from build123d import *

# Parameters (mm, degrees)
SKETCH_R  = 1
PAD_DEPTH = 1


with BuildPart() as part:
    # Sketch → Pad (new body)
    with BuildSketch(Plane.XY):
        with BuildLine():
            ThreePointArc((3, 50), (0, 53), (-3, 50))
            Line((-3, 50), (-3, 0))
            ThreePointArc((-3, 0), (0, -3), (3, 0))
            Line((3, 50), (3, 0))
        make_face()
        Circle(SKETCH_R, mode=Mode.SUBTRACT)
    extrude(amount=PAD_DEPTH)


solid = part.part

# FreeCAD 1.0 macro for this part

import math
import FreeCAD as App
import Part
import Sketcher
Q = App.Units.Quantity

doc = App.newDocument("Part")
body = doc.addObject("PartDesign::Body", "Body")

sketch1 = body.newObject("Sketcher::SketchObject", "Sketch")
sketch1.AttachmentSupport = (doc.getObject("XY_Plane"), [""])
sketch1.MapMode = "FlatFace"
sketch1.addGeometry([
    Part.ArcOfCircle(Part.Circle(App.Vector(0, 50, 0), App.Vector(0, 0, 1), 3), math.radians(0), math.radians(180)),
    Part.LineSegment(App.Vector(-3, 50, 0), App.Vector(-3, 0, 0)),
    Part.ArcOfCircle(Part.Circle(App.Vector(0, 0, 0), App.Vector(0, 0, 1), 3), math.radians(180), math.radians(360)),
    Part.LineSegment(App.Vector(3, 0, 0), App.Vector(3, 50, 0)),
    Part.Circle(App.Vector(0, 0, 0), App.Vector(0, 0, 1), 1),
], False)
sketch1.addConstraint([
    Sketcher.Constraint("Tangent", 0, 2, 1, 1),
    Sketcher.Constraint("Tangent", 1, 2, 2, 1),
    Sketcher.Constraint("Tangent", 2, 2, 3, 1),
    Sketcher.Constraint("Tangent", 3, 2, 0, 1),
    Sketcher.Constraint("Vertical", 1),
    Sketcher.Constraint("Vertical", 3),
    Sketcher.Constraint("Coincident", 2, 3, -1, 1),
    Sketcher.Constraint("Coincident", 4, 3, -1, 1),
    Sketcher.Constraint("Diameter", 4, Q("2 mm")),
    Sketcher.Constraint("Radius", 0, Q("3 mm")),
    Sketcher.Constraint("DistanceY", 1, 2, 1, 1, Q("50 mm")),
])
pad1 = body.newObject("PartDesign::Pad", "Pad")
pad1.Profile = sketch1
pad1.Length = 1

doc.recompute()
